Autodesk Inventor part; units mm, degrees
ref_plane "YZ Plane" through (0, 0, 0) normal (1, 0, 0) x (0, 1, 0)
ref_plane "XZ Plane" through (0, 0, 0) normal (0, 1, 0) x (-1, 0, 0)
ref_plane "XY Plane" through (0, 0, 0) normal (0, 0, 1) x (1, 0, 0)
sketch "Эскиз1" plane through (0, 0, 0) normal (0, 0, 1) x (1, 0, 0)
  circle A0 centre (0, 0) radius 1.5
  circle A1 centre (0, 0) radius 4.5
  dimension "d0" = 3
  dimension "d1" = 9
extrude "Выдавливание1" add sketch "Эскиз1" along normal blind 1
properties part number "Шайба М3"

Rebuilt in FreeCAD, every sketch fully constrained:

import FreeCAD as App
import Part
import Sketcher
from FreeCAD import Vector
Q = App.Units.Quantity

doc = App.newDocument("Part")
body = doc.addObject("PartDesign::Body", "Body")

# Sketch on XY plane
sketch1 = body.newObject("Sketcher::SketchObject", "Sketch")
sketch1.AttachmentSupport = (doc.getObject("XY_Plane"), [""])
sketch1.MapMode = "FlatFace"
sketch1.addGeometry([
    Part.Circle(Vector(0, 0, 0), Vector(0, 0, 1), 4.5),
    Part.Circle(Vector(0, 0, 0), Vector(0, 0, 1), 1.5),
], False)
sketch1.addConstraint([
    Sketcher.Constraint("Coincident", 0, 3, -1, 1),
    Sketcher.Constraint("Coincident", 1, 3, -1, 1),
    Sketcher.Constraint("Diameter", 0, Q("9 mm")),
    Sketcher.Constraint("Diameter", 1, Q("3 mm")),
])
pad1 = body.newObject("PartDesign::Pad", "Pad")
pad1.Profile = sketch1
pad1.Length = 1

doc.recompute()
